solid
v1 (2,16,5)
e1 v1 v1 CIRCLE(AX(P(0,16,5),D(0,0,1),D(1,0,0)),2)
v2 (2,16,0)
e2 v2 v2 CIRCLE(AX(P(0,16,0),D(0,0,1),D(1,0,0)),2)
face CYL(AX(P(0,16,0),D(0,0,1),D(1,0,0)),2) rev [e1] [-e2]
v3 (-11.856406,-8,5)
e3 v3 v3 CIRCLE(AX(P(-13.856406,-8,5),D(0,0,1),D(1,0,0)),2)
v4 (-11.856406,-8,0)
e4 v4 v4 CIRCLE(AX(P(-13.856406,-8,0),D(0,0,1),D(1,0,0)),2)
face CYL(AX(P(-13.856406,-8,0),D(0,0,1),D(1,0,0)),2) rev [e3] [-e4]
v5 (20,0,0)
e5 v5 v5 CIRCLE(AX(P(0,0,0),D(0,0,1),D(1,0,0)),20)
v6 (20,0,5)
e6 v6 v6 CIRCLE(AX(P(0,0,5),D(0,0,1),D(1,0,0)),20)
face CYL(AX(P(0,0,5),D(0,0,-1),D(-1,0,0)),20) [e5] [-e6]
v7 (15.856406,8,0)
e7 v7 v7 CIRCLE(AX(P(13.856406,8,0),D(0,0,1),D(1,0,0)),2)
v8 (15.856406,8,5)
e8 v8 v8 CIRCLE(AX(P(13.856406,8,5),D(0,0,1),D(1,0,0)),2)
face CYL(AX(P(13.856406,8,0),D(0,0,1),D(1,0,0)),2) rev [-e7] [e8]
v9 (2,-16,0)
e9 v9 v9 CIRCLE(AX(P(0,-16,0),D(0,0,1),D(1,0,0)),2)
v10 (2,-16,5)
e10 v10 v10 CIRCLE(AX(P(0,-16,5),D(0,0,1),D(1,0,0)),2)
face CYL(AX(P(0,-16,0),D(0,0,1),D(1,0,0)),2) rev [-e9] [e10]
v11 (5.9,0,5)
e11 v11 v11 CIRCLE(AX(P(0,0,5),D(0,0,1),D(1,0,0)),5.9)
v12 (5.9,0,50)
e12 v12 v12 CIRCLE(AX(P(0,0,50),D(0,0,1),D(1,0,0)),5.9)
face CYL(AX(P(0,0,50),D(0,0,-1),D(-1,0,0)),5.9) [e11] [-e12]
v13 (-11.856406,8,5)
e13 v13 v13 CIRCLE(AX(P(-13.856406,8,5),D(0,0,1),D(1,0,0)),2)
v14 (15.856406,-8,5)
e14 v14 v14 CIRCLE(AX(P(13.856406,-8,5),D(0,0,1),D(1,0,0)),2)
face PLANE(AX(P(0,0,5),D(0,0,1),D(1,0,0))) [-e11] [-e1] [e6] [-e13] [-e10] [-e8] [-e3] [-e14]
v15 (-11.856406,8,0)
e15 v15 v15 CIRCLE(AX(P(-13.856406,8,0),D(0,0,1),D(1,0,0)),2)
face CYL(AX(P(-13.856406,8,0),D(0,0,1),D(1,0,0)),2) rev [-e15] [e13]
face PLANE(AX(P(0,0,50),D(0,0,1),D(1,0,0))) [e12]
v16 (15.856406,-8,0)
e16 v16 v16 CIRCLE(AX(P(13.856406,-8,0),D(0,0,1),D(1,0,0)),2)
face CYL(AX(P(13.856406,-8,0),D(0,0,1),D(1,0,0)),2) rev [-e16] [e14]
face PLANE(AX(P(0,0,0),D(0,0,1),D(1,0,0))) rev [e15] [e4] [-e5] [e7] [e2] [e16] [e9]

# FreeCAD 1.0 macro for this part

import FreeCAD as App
import Part
import Sketcher

V = App.Vector
Q = App.Units.Quantity

doc = App.newDocument("Part")
body = doc.addObject("PartDesign::Body", "Body")

# Sketch on XY plane
sketch1 = body.newObject("Sketcher::SketchObject", "Sketch")
sketch1.AttachmentSupport = (doc.getObject("XY_Plane"), [""])
sketch1.MapMode = "FlatFace"
sketch1.addGeometry(Part.Circle(V(0, 0, 0), V(0, 0, 1), 20), False)
sketch1.addConstraint([
    Sketcher.Constraint("Coincident", 0, 3, -1, 1),
    Sketcher.Constraint("Diameter", 0, Q("40 mm")),
])
pad1 = body.newObject("PartDesign::Pad", "Pad")
pad1.Profile = sketch1
pad1.Length = 5

# Sketch on XY plane
sketch2 = body.newObject("Sketcher::SketchObject", "Sketch001")
sketch2.AttachmentSupport = (doc.getObject("XY_Plane"), [""])
sketch2.MapMode = "FlatFace"
sketch2.AttachmentOffset = App.Placement(V(0, 0, 5), App.Rotation())
sketch2.addGeometry(Part.Circle(V(0, 0, 0), V(0, 0, 1), 6), False)
sketch2.addConstraint([
    Sketcher.Constraint("Coincident", 0, 3, -1, 1),
    Sketcher.Constraint("Diameter", 0, Q("11.8 mm")),
])
pad2 = body.newObject("PartDesign::Pad", "Pad001")
pad2.Profile = sketch2
pad2.Length = 45

# Sketch on XY plane
sketch3 = body.newObject("Sketcher::SketchObject", "Sketch002")
sketch3.AttachmentSupport = (doc.getObject("XY_Plane"), [""])
sketch3.MapMode = "FlatFace"
sketch3.AttachmentOffset = App.Placement(V(0, 0, 5), App.Rotation())
sketch3.addGeometry([
    Part.Circle(V(0, 16, 0), V(0, 0, 1), 2),  # 0
    Part.Circle(V(13.9, 8, 0), V(0, 0, 1), 2),  # 1
    Part.Circle(V(13.9, -8, 0), V(0, 0, 1), 2),  # 2
    Part.Circle(V(0, -16, 0), V(0, 0, 1), 2),  # 3
    Part.Circle(V(-13.9, -8, 0), V(0, 0, 1), 2),  # 4
    Part.Circle(V(-13.9, 8, 0), V(0, 0, 1), 2),  # 5
], False)
sketch3.addConstraint([
    Sketcher.Constraint("Equal", 0, 1),
    Sketcher.Constraint("Equal", 1, 2),
    Sketcher.Constraint("Equal", 2, 3),
    Sketcher.Constraint("Equal", 3, 4),
    Sketcher.Constraint("Equal", 4, 5),
    Sketcher.Constraint("Symmetric", 0, 3, 3, 3, -1, 1),
    Sketcher.Constraint("Symmetric", 1, 3, 4, 3, -1, 1),
    Sketcher.Constraint("Symmetric", 2, 3, 5, 3, -1, 1),
    Sketcher.Constraint("Symmetric", 2, 3, 4, 3, -2),
    Sketcher.Constraint("PointOnObject", 0, 3, -2),
    Sketcher.Constraint("Diameter", 0, Q("4 mm")),
    Sketcher.Constraint("DistanceY", -1, 1, 0, 3, Q("16 mm")),
    Sketcher.Constraint("DistanceY", -1, 1, 1, 3, Q("8 mm")),
    Sketcher.Constraint("DistanceX", -1, 1, 1, 3, Q("13.856406 mm")),
])
pocket1 = body.newObject("PartDesign::Pocket", "Pocket")
pocket1.Profile = sketch3
pocket1.Length = 5

doc.recompute()
